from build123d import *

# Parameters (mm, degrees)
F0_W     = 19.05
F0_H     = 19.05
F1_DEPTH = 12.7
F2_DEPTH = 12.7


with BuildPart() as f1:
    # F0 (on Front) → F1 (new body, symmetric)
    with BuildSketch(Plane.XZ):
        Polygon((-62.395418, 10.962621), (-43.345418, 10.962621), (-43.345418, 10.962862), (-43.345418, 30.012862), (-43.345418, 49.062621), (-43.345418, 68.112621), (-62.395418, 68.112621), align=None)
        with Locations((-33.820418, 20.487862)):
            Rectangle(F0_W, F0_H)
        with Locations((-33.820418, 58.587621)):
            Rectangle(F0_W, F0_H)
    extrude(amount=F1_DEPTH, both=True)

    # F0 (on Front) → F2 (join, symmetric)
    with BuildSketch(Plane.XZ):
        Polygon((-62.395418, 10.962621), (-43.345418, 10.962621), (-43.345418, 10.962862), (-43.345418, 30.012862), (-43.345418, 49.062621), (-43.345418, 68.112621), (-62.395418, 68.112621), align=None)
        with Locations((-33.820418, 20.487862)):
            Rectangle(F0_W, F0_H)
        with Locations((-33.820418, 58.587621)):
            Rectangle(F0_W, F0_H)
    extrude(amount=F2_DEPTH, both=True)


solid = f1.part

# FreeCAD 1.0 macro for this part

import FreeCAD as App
import Part
import Sketcher
from FreeCAD import Vector
Q = App.Units.Quantity


def add_polygon(sketch, points):
    """Adds a closed chain of lines whose ends are joined by coincident constraints."""
    first, n = sketch.GeometryCount, len(points)
    for a, b in zip(points, points[1:] + points[:1]):
        sketch.addGeometry(Part.LineSegment(App.Vector(*a, 0), App.Vector(*b, 0)), False)
    for i in range(n):
        sketch.addConstraint(Sketcher.Constraint("Coincident", first + i, 2, first + (i + 1) % n, 1))

doc = App.newDocument("Part")
body = doc.addObject("PartDesign::Body", "Body")

# Sketch on XZ plane
sketch1 = body.newObject("Sketcher::SketchObject", "Sketch")
sketch1.AttachmentSupport = (doc.getObject("XZ_Plane"), [""])
sketch1.MapMode = "FlatFace"
add_polygon(sketch1, [(-62.39542, 10.96262), (-43.34542, 10.96262), (-43.34542, 10.96286), (-24.29542, 10.96286), (-24.29542, 30.01286), (-43.34542, 30.01286), (-43.34542, 49.06262), (-24.29542, 49.06262), (-24.29542, 68.11262), (-62.39542, 68.11262)])  # lines 0-9
sketch1.addConstraint(Sketcher.Constraint("Horizontal", 0))
sketch1.addConstraint(Sketcher.Constraint("Vertical", 1))
sketch1.addConstraint(Sketcher.Constraint("Horizontal", 2))
sketch1.addConstraint(Sketcher.Constraint("Vertical", 3))
sketch1.addConstraint(Sketcher.Constraint("Horizontal", 4))
sketch1.addConstraint(Sketcher.Constraint("Vertical", 5))
sketch1.addConstraint(Sketcher.Constraint("Horizontal", 6))
sketch1.addConstraint(Sketcher.Constraint("Vertical", 7))
sketch1.addConstraint(Sketcher.Constraint("Horizontal", 8))
sketch1.addConstraint(Sketcher.Constraint("Vertical", 9))
sketch1.addConstraint(Sketcher.Constraint("Vertical", 1, 2, 4, 2))
sketch1.addConstraint(Sketcher.Constraint("Vertical", 3, 2, 6, 2))
sketch1.addConstraint(Sketcher.Constraint("Equal", 0, 2))
sketch1.addConstraint(Sketcher.Constraint("Equal", 6, 3))
sketch1.addConstraint(Sketcher.Constraint("Equal", 3, 7))
sketch1.addConstraint(Sketcher.Constraint("DistanceX", 8, 2, 8, 1, Q("1.5 in")))
sketch1.addConstraint(Sketcher.Constraint("DistanceY", 9, 2, 9, 1, Q("2.25 in")))
sketch1.addConstraint(Sketcher.Constraint("DistanceY", 1, 1, 1, 2, 0.000241))
sketch1.addConstraint(Sketcher.Constraint("DistanceX", 0, 2, -1, 1, 43.345418))
sketch1.addConstraint(Sketcher.Constraint("DistanceY", -1, 1, 0, 2, 10.962621))
pad1 = body.newObject("PartDesign::Pad", "Pad")
pad1.Profile = sketch1
pad1.Length = Q("1 in")
pad1.Midplane = True

# Sketch on XZ plane
sketch2 = body.newObject("Sketcher::SketchObject", "Sketch001")
sketch2.AttachmentSupport = (doc.getObject("XZ_Plane"), [""])
sketch2.MapMode = "FlatFace"
add_polygon(sketch2, [(-62.39542, 10.96262), (-43.34542, 10.96262), (-43.34542, 10.96286), (-24.29542, 10.96286), (-24.29542, 30.01286), (-43.34542, 30.01286), (-43.34542, 49.06262), (-24.29542, 49.06262), (-24.29542, 68.11262), (-62.39542, 68.11262)])  # lines 0-9
sketch2.addConstraint(Sketcher.Constraint("Horizontal", 0))
sketch2.addConstraint(Sketcher.Constraint("Vertical", 1))
sketch2.addConstraint(Sketcher.Constraint("Horizontal", 2))
sketch2.addConstraint(Sketcher.Constraint("Vertical", 3))
sketch2.addConstraint(Sketcher.Constraint("Horizontal", 4))
sketch2.addConstraint(Sketcher.Constraint("Vertical", 5))
sketch2.addConstraint(Sketcher.Constraint("Horizontal", 6))
sketch2.addConstraint(Sketcher.Constraint("Vertical", 7))
sketch2.addConstraint(Sketcher.Constraint("Horizontal", 8))
sketch2.addConstraint(Sketcher.Constraint("Vertical", 9))
sketch2.addConstraint(Sketcher.Constraint("Vertical", 1, 2, 4, 2))
sketch2.addConstraint(Sketcher.Constraint("Vertical", 3, 2, 6, 2))
sketch2.addConstraint(Sketcher.Constraint("Equal", 0, 2))
sketch2.addConstraint(Sketcher.Constraint("Equal", 6, 3))
sketch2.addConstraint(Sketcher.Constraint("Equal", 3, 7))
sketch2.addConstraint(Sketcher.Constraint("DistanceX", 8, 2, 8, 1, Q("1.5 in")))
sketch2.addConstraint(Sketcher.Constraint("DistanceY", 9, 2, 9, 1, Q("2.25 in")))
sketch2.addConstraint(Sketcher.Constraint("DistanceY", 1, 1, 1, 2, 0.000241))
sketch2.addConstraint(Sketcher.Constraint("DistanceX", 0, 2, -1, 1, 43.345418))
sketch2.addConstraint(Sketcher.Constraint("DistanceY", -1, 1, 0, 2, 10.962621))
pad2 = body.newObject("PartDesign::Pad", "Pad001")
pad2.Profile = sketch2
pad2.Length = Q("1 in")
pad2.Midplane = True

doc.recompute()
